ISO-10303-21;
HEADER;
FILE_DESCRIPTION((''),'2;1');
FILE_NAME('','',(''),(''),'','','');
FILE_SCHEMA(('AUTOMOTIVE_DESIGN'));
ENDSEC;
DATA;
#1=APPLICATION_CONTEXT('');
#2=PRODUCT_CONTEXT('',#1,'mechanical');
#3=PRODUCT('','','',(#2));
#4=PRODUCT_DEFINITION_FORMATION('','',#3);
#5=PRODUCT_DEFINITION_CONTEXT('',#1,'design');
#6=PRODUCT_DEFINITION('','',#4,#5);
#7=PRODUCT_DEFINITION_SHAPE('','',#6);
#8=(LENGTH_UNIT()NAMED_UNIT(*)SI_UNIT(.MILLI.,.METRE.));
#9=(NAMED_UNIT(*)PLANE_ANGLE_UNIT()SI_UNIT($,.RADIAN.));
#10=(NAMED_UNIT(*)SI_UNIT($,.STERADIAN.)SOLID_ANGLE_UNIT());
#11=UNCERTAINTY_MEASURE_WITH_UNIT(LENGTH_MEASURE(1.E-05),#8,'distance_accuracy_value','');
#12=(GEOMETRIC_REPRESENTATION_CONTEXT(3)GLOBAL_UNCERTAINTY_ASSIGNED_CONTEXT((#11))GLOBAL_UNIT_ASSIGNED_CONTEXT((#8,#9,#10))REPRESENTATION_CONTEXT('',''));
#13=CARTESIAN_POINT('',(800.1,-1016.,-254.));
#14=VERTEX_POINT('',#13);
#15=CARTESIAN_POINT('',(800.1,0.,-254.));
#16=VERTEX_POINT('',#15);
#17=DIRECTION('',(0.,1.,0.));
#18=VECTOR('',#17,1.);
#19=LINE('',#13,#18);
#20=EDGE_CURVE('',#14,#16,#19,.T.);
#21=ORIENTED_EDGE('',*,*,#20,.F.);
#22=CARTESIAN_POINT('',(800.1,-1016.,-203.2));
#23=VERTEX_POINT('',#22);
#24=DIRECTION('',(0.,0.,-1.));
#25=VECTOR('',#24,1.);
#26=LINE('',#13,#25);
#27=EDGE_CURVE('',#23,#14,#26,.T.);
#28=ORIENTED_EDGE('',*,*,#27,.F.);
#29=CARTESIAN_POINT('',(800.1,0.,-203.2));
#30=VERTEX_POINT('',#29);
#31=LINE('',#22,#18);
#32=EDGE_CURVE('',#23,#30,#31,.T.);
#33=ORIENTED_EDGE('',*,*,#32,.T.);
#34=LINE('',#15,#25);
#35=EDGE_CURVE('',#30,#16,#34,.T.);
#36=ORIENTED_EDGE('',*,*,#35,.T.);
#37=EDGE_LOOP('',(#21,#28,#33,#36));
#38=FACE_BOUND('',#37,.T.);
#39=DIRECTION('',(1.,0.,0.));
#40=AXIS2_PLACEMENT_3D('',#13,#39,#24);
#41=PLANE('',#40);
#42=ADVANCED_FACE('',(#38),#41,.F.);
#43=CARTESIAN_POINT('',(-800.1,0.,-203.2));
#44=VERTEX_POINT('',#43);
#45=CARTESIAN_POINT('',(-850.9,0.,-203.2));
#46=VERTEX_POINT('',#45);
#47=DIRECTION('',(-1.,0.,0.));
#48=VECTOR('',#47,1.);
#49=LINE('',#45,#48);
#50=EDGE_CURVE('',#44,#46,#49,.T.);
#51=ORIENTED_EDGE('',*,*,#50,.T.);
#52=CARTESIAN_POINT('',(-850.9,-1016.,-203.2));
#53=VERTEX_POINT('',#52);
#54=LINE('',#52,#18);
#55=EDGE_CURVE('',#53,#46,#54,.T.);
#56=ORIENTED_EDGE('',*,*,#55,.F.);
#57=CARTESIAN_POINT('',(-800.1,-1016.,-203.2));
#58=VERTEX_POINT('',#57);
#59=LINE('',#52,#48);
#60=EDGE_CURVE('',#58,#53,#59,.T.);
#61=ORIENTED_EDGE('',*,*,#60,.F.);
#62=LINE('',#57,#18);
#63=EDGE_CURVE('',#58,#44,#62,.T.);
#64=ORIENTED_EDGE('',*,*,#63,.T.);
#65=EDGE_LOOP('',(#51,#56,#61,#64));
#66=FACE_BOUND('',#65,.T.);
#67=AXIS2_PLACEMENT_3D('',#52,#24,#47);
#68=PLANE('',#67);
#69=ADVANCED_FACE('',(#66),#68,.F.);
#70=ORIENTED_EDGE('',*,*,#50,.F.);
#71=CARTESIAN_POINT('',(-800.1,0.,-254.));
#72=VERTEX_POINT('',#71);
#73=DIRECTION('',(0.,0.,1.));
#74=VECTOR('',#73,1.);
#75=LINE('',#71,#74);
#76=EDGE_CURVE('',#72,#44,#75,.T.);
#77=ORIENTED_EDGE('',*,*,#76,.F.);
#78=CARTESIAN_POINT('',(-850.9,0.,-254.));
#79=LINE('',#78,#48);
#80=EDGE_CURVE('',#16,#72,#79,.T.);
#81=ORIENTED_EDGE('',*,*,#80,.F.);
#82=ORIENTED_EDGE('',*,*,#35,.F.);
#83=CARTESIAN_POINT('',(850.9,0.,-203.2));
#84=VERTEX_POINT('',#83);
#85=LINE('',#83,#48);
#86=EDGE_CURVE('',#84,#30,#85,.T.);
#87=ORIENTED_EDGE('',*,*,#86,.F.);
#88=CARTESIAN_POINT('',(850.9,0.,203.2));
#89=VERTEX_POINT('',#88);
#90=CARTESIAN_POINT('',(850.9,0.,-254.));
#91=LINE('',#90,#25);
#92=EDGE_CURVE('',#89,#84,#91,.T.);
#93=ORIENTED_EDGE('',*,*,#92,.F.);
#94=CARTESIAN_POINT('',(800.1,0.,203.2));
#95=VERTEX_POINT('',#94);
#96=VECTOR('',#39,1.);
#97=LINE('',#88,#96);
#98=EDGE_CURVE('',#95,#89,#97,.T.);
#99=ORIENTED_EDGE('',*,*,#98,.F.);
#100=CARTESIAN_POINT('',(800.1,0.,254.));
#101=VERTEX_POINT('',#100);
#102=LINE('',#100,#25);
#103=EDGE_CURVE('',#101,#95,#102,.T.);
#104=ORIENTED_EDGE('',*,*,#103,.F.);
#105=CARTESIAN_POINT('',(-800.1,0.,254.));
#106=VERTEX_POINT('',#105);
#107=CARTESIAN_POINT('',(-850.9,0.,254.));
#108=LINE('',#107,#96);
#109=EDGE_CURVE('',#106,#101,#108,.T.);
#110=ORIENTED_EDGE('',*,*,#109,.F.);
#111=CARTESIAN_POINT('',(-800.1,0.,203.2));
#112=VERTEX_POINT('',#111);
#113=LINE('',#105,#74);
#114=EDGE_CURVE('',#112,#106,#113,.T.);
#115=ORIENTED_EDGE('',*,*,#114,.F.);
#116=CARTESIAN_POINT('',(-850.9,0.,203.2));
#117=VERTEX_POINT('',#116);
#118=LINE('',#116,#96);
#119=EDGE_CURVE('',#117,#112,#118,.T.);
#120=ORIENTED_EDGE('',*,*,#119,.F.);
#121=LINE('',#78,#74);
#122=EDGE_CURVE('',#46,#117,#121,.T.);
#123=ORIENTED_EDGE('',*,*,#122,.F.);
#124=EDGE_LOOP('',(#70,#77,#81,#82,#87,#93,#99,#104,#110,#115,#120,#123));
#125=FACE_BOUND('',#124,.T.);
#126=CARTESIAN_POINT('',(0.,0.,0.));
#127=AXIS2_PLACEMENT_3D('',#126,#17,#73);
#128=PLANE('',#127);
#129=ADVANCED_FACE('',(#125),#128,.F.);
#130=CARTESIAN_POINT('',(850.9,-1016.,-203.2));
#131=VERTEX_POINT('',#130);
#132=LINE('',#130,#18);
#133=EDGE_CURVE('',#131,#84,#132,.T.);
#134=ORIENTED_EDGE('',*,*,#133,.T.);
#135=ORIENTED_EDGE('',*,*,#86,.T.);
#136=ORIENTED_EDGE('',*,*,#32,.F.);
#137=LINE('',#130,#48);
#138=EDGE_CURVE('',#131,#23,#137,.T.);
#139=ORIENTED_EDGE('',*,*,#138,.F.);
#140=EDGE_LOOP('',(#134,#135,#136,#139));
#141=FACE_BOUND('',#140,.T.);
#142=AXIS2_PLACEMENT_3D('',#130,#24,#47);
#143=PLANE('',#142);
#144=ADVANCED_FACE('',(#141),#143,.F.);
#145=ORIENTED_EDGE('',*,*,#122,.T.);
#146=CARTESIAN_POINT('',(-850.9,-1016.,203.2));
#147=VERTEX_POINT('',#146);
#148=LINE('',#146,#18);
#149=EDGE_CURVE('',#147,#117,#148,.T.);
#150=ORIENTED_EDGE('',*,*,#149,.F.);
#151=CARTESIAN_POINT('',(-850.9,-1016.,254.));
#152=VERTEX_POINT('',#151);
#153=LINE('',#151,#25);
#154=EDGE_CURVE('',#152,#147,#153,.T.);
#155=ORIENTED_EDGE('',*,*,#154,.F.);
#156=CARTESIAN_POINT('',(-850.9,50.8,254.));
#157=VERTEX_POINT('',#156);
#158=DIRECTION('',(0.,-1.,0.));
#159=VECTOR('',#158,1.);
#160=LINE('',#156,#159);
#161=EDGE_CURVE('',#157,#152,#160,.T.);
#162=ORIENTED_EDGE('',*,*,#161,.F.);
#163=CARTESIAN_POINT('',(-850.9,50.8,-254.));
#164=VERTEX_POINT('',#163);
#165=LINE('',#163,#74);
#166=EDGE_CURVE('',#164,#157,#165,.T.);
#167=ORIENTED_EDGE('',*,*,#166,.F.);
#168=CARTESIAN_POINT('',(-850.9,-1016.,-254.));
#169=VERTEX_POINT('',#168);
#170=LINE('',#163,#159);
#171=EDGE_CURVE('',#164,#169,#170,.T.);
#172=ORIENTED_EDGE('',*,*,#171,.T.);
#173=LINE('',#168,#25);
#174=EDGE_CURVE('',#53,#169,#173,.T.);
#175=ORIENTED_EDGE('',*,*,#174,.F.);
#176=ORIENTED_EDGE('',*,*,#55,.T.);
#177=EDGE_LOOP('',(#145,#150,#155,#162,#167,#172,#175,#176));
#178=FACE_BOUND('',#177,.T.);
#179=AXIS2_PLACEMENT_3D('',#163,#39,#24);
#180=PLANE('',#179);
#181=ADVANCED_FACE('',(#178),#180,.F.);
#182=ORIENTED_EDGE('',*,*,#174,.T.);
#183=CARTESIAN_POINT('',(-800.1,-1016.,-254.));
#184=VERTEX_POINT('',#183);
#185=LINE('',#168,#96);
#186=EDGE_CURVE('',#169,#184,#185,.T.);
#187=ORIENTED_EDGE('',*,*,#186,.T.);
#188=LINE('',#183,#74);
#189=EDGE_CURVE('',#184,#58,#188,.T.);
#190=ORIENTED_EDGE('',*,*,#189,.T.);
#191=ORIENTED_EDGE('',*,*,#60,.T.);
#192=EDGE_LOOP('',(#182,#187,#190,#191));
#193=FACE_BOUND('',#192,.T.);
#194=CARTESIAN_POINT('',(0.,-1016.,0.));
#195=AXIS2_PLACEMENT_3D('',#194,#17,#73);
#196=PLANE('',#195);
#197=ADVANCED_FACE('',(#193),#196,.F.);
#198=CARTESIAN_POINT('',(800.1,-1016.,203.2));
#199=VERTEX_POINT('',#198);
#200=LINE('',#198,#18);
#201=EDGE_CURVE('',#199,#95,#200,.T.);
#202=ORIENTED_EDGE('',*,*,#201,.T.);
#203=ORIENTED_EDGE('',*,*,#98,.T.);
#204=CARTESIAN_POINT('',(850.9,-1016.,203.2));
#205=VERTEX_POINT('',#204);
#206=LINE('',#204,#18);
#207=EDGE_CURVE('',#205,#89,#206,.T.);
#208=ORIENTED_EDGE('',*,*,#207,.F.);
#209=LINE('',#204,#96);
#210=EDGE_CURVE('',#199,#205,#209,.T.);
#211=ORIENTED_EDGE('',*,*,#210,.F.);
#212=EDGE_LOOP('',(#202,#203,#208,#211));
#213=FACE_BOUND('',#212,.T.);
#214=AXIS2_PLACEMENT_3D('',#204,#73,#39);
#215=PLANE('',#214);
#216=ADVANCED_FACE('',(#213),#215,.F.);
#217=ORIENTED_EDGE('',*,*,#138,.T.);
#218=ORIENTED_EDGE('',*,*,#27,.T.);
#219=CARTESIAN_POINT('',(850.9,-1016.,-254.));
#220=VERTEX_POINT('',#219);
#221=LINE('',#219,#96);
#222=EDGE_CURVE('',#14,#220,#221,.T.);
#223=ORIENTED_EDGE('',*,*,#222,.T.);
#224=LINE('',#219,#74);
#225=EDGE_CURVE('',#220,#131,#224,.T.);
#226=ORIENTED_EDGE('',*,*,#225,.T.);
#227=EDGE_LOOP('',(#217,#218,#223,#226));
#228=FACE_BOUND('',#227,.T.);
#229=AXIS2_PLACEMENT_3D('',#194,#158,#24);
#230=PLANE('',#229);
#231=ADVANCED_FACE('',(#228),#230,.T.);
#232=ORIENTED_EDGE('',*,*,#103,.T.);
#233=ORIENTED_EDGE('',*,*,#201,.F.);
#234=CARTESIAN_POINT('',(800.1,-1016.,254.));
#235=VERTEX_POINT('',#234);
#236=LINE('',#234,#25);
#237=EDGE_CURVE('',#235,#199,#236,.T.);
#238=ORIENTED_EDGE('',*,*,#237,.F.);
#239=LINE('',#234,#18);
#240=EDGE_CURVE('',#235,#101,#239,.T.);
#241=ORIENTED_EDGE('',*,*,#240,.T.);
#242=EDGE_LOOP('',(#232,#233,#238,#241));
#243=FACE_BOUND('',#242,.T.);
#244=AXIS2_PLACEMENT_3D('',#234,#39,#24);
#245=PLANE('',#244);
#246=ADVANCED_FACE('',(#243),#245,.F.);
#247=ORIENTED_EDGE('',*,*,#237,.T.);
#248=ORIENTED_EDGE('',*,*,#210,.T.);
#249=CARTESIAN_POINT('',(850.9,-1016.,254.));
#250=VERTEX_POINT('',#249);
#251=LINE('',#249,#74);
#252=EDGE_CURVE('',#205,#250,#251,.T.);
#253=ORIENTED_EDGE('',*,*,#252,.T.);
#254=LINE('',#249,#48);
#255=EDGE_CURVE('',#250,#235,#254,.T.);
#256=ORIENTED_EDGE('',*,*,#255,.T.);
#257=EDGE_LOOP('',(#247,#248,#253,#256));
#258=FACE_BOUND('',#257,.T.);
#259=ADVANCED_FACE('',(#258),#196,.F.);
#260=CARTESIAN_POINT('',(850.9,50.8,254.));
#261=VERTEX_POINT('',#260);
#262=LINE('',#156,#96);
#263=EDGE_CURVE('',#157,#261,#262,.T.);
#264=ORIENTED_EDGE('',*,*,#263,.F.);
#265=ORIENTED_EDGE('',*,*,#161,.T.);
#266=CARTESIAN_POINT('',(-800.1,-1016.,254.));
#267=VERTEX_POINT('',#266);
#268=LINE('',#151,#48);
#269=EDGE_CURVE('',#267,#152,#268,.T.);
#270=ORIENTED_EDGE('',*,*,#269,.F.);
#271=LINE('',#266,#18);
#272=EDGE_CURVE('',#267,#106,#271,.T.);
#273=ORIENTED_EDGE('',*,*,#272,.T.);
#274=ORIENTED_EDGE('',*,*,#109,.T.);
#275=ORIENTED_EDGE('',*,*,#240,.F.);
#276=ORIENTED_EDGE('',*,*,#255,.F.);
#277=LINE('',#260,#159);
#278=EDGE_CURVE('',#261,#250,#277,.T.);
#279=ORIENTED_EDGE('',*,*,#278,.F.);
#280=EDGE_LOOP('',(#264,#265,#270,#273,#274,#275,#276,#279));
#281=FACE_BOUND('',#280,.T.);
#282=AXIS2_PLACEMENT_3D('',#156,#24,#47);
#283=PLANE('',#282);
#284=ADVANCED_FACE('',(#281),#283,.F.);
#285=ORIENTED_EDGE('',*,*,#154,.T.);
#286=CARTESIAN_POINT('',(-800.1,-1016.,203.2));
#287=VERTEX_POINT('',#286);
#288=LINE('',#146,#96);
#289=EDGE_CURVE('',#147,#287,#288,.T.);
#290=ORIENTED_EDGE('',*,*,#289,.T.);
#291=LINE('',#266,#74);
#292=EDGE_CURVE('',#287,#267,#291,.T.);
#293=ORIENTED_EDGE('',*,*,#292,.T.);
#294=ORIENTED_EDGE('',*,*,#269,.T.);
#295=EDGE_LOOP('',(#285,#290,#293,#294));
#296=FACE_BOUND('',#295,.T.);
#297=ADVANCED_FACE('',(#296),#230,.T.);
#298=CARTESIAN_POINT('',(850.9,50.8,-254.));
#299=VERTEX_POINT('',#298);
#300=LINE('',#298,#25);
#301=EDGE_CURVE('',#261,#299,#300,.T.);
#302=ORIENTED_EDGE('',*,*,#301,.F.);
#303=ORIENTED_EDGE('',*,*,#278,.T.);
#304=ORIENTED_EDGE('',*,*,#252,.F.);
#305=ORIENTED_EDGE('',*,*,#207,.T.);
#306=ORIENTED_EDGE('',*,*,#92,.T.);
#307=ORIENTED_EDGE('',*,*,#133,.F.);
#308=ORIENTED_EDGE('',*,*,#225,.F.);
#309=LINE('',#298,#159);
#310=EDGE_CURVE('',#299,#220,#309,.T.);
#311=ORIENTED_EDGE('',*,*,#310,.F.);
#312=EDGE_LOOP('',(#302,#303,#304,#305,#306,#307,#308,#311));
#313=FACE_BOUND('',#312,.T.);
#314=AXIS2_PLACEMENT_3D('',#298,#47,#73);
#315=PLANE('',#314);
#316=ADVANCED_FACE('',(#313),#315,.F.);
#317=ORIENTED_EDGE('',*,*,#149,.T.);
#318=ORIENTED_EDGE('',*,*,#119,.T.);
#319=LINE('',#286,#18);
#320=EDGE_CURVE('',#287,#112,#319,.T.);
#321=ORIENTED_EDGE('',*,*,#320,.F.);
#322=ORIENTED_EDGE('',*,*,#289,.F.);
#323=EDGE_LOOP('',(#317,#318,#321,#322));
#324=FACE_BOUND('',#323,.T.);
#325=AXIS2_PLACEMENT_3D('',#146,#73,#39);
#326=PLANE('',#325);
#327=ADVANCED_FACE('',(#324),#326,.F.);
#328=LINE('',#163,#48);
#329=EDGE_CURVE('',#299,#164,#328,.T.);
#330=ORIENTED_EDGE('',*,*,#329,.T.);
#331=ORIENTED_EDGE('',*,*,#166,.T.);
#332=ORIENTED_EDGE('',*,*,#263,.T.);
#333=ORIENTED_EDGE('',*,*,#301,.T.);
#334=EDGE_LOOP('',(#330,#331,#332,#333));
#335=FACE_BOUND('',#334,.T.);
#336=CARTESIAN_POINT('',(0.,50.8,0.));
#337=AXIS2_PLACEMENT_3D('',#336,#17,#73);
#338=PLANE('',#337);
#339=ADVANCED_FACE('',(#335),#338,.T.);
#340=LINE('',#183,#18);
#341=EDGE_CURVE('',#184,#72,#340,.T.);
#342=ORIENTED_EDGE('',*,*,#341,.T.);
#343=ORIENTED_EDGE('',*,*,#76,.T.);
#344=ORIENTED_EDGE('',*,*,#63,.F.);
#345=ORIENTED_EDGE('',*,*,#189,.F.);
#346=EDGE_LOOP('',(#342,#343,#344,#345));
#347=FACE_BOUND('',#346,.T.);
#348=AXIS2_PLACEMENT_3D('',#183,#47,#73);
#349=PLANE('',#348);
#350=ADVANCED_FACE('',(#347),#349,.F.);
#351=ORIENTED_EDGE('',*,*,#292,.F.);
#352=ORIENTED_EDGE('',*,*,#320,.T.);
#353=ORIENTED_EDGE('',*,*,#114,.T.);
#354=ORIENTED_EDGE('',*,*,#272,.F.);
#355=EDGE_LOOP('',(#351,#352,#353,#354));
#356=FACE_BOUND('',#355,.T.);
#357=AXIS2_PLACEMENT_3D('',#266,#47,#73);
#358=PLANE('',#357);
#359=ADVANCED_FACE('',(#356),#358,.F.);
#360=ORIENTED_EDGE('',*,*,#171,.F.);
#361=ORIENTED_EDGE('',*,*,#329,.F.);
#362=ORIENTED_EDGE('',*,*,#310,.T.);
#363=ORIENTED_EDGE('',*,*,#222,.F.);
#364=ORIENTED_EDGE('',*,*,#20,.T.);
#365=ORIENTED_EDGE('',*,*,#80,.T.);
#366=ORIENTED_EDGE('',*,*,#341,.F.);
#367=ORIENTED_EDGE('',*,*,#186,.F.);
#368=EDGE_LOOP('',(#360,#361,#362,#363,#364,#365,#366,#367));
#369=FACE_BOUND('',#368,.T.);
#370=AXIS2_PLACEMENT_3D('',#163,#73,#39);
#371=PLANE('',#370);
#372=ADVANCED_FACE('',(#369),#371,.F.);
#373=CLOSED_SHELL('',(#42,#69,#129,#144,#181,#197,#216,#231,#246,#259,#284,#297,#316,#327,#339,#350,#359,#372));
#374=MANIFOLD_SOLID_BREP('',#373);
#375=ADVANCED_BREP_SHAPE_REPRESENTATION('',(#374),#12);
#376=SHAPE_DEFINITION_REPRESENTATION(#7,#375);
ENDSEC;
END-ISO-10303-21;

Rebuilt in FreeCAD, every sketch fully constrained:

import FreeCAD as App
import Part
import Sketcher

V = App.Vector
Q = App.Units.Quantity


def add_polygon(sketch, points):
    """Adds a closed chain of lines whose ends are joined by coincident constraints."""
    first, n = sketch.GeometryCount, len(points)
    for a, b in zip(points, points[1:] + points[:1]):
        sketch.addGeometry(Part.LineSegment(App.Vector(*a, 0), App.Vector(*b, 0)), False)
    for i in range(n):
        sketch.addConstraint(Sketcher.Constraint("Coincident", first + i, 2, first + (i + 1) % n, 1))

doc = App.newDocument("Part")
body = doc.addObject("PartDesign::Body", "Body")

sketch1 = body.newObject("Sketcher::SketchObject", "Sketch")
sketch1.AttachmentSupport = (doc.getObject("XZ_Plane"), [""])
sketch1.MapMode = "FlatFace"
add_polygon(sketch1, [(-850.9, -254), (-850.9, 254), (850.9, 254), (850.9, -254)])
sketch1.addConstraint([
    Sketcher.Constraint("Vertical", 0),
    Sketcher.Constraint("Horizontal", 1),
    Sketcher.Constraint("Vertical", 2),
    Sketcher.Constraint("Horizontal", 3),
    Sketcher.Constraint("Symmetric", 0, 2, 2, 2, -1, 1),
    Sketcher.Constraint("DistanceX", 1, 1, 1, 2, Q("67 in")),
    Sketcher.Constraint("DistanceY", 0, 1, 0, 2, Q("20 in")),
])
pad1 = body.newObject("PartDesign::Pad", "Pad")
pad1.Profile = sketch1
pad1.Length = Q("2 in")
pad1.Reversed = True

sketch2 = body.newObject("Sketcher::SketchObject", "Sketch001")
sketch2.AttachmentSupport = (doc.getObject("XZ_Plane"), [""])
sketch2.MapMode = "FlatFace"
add_polygon(sketch2, [(-850.9, 254), (-850.9, 203.2), (-800.1, 203.2), (-800.1, 254)])
add_polygon(sketch2, [(-850.9, -203.2), (-850.9, -254), (-800.1, -254), (-800.1, -203.2)])
add_polygon(sketch2, [(800.1, 254), (800.1, 203.2), (850.9, 203.2), (850.9, 254)])
add_polygon(sketch2, [(800.1, -203.2), (800.1, -254), (850.9, -254), (850.9, -203.2)])
sketch2.addConstraint([
    Sketcher.Constraint("Vertical", 0),
    Sketcher.Constraint("Horizontal", 1),
    Sketcher.Constraint("Vertical", 2),
    Sketcher.Constraint("Horizontal", 3),
    Sketcher.Constraint("Vertical", 4),
    Sketcher.Constraint("Horizontal", 5),
    Sketcher.Constraint("Vertical", 6),
    Sketcher.Constraint("Horizontal", 7),
    Sketcher.Constraint("Vertical", 8),
    Sketcher.Constraint("Horizontal", 9),
    Sketcher.Constraint("Vertical", 10),
    Sketcher.Constraint("Horizontal", 11),
    Sketcher.Constraint("Vertical", 12),
    Sketcher.Constraint("Horizontal", 13),
    Sketcher.Constraint("Vertical", 14),
    Sketcher.Constraint("Horizontal", 15),
    Sketcher.Constraint("Symmetric", 6, 2, 8, 2, -1, 1),
    Sketcher.Constraint("Symmetric", 4, 2, 10, 2, -1, 1),
    Sketcher.Constraint("Symmetric", 2, 2, 12, 2, -1, 1),
    Sketcher.Constraint("Symmetric", 0, 2, 14, 2, -1, 1),
    Sketcher.Constraint("Symmetric", 1, 2, 8, 2, -2),
    Sketcher.Constraint("Symmetric", 3, 2, 10, 2, -2),
    Sketcher.Constraint("Equal", 15, 0),
    Sketcher.Constraint("DistanceX", 1, 1, 1, 2, Q("2 in")),
    Sketcher.Constraint("DistanceY", -1, 1, 0, 2, Q("8 in")),
    Sketcher.Constraint("DistanceX", 1, 2, 8, 2, Q("63 in")),
])
pad2 = body.newObject("PartDesign::Pad", "Pad001")
pad2.Profile = sketch2
pad2.Length = Q("40 in")

doc.recompute()
